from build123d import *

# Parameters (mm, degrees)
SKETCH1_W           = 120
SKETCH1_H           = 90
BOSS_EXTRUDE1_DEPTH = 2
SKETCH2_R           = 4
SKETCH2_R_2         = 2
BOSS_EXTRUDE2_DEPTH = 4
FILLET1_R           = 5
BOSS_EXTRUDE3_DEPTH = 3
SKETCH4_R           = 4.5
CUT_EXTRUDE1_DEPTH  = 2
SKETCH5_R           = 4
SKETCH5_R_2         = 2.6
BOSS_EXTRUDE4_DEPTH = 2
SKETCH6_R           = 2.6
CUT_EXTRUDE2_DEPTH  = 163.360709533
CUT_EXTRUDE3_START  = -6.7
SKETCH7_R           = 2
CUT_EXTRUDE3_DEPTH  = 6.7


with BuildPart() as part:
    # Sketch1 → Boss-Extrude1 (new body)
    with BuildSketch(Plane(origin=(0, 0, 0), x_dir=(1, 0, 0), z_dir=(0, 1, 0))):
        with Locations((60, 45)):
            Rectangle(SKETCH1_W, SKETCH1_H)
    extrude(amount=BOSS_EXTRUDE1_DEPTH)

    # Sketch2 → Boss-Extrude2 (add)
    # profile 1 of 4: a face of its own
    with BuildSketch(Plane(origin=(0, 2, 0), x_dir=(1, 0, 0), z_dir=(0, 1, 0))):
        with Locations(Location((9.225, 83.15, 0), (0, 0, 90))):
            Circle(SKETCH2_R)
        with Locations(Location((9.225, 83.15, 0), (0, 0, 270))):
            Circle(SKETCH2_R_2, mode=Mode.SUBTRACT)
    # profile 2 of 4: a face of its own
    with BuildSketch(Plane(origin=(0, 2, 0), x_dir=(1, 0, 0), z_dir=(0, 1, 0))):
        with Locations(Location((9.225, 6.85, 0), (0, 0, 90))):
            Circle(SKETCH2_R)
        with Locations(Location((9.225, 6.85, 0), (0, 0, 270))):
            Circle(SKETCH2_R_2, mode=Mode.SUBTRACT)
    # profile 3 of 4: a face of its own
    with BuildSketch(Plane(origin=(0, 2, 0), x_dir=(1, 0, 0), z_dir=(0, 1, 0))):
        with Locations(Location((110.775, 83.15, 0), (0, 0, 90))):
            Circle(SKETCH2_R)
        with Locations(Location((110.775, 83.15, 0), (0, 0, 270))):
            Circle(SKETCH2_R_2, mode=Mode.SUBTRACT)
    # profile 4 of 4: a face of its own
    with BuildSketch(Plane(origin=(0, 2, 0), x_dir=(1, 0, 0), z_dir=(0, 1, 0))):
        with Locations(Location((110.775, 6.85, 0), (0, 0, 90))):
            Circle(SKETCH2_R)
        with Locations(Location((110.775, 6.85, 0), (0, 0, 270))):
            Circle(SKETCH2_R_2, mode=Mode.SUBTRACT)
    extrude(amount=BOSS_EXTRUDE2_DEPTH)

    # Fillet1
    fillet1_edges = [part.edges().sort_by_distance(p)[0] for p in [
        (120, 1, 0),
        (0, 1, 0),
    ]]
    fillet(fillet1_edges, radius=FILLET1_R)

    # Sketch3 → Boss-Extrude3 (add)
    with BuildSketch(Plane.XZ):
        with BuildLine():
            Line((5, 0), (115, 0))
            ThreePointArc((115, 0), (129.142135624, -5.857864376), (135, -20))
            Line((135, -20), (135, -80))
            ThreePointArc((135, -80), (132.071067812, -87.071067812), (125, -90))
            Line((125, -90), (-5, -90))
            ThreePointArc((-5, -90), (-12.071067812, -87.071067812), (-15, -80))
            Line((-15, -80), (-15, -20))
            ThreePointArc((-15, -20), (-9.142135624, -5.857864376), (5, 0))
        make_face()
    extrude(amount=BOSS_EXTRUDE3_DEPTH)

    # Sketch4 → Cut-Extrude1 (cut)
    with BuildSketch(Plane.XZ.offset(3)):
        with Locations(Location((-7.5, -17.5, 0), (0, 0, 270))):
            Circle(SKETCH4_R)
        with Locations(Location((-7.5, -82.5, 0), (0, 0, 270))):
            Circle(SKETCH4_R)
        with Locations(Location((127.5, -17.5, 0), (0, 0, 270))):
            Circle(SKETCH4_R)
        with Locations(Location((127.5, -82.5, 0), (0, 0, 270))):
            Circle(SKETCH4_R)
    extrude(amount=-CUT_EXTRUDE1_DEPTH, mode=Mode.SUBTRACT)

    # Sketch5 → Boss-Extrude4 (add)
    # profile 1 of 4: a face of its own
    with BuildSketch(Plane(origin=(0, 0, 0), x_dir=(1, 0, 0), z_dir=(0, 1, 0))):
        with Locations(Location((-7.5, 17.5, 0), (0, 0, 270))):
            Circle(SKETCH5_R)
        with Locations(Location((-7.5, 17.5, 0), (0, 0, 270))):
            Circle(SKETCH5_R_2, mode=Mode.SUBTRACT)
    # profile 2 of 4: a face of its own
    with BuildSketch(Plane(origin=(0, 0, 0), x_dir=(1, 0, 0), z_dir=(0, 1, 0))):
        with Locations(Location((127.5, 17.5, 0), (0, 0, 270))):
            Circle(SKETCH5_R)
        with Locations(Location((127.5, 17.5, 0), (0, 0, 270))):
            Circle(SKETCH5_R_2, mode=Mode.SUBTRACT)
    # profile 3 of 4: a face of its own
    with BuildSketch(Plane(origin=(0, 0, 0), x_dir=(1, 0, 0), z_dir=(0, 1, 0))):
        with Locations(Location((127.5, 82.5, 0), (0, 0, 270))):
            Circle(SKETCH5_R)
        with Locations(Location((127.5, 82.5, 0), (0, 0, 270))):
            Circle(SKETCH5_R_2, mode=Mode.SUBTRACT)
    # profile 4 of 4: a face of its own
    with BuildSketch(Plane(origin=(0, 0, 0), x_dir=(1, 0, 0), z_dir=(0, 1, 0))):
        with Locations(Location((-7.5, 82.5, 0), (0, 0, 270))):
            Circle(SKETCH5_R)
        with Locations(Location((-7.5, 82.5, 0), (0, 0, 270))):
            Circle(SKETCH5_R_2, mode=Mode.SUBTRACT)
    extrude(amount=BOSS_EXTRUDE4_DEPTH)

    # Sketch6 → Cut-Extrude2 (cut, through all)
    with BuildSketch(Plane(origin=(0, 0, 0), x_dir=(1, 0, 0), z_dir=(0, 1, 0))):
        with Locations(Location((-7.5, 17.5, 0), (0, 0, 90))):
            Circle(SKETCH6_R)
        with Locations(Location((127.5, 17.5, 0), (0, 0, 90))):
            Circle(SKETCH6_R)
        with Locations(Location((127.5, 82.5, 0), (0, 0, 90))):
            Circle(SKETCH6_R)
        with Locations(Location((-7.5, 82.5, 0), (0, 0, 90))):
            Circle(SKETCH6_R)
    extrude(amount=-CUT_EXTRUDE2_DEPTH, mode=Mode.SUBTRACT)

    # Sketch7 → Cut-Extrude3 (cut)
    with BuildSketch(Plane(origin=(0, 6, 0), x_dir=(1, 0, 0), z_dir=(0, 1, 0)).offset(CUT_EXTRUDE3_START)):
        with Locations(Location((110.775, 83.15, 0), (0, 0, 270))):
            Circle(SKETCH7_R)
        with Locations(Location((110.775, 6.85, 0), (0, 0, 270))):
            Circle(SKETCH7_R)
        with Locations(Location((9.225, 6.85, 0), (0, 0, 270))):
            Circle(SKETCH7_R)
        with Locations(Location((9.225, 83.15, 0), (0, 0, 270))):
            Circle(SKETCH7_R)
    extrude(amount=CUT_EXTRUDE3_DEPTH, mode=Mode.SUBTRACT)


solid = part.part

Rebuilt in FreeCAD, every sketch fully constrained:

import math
import FreeCAD as App
import Part
import Sketcher


def edges_at(feature, points):
    """Names of the edges that pass closest to the given points."""
    edges = feature.Shape.Edges
    near = lambda p: min(range(len(edges)), key=lambda i: edges[i].distToShape(Part.Vertex(*p))[0])
    return sorted({f"Edge{near(p) + 1}" for p in points})


def add_polygon(sketch, points):
    """Adds a closed chain of lines whose ends are joined by coincident constraints."""
    first, n = sketch.GeometryCount, len(points)
    for a, b in zip(points, points[1:] + points[:1]):
        sketch.addGeometry(Part.LineSegment(App.Vector(*a, 0), App.Vector(*b, 0)), False)
    for i in range(n):
        sketch.addConstraint(Sketcher.Constraint("Coincident", first + i, 2, first + (i + 1) % n, 1))

doc = App.newDocument("Part")
body = doc.addObject("PartDesign::Body", "Body")

# Sketch on XZ plane
sketch1 = body.newObject("Sketcher::SketchObject", "Sketch")
sketch1.AttachmentSupport = (doc.getObject("XZ_Plane"), [""])
sketch1.MapMode = "FlatFace"
add_polygon(sketch1, [(0, -90), (0, 0), (120, 0), (120, -90)])  # lines 0-3
sketch1.addConstraint([
    Sketcher.Constraint("Vertical", 0),
    Sketcher.Constraint("Horizontal", 1),
    Sketcher.Constraint("Vertical", 2),
    Sketcher.Constraint("Horizontal", 3),
    Sketcher.Constraint("Coincident", 0, 2, -1, 1),
    Sketcher.Constraint("DistanceX", 1, 1, 1, 2, 120.0),
    Sketcher.Constraint("DistanceY", 0, 1, 0, 2, 90.0),
])
pad1 = body.newObject("PartDesign::Pad", "Pad")
pad1.Profile = sketch1
pad1.Length = 2
pad1.Reversed = True

# Sketch on XZ plane
sketch2 = body.newObject("Sketcher::SketchObject", "Sketch001")
sketch2.AttachmentSupport = (doc.getObject("XZ_Plane"), [""])
sketch2.MapMode = "FlatFace"
sketch2.AttachmentOffset = App.Placement(App.Vector(0, 0, -2), App.Rotation())
sketch2.addGeometry([
    Part.Circle(App.Vector(9.2, -83.2, 0), App.Vector(0, 0, 1), 4),  # 0
    Part.Circle(App.Vector(9.2, -83.2, 0), App.Vector(0, 0, 1), 2),  # 1
    Part.Circle(App.Vector(9.2, -6.8, 0), App.Vector(0, 0, 1), 4),  # 2
    Part.Circle(App.Vector(9.2, -6.8, 0), App.Vector(0, 0, 1), 2),  # 3
    Part.Circle(App.Vector(110.8, -83.2, 0), App.Vector(0, 0, 1), 4),  # 4
    Part.Circle(App.Vector(110.8, -83.2, 0), App.Vector(0, 0, 1), 2),  # 5
    Part.Circle(App.Vector(110.8, -6.8, 0), App.Vector(0, 0, 1), 4),  # 6
    Part.Circle(App.Vector(110.8, -6.8, 0), App.Vector(0, 0, 1), 2),  # 7
], False)
sketch2.addConstraint([
    Sketcher.Constraint("Coincident", 1, 3, 0, 3),
    Sketcher.Constraint("Coincident", 3, 3, 2, 3),
    Sketcher.Constraint("Coincident", 5, 3, 4, 3),
    Sketcher.Constraint("Coincident", 7, 3, 6, 3),
    Sketcher.Constraint("Equal", 0, 2),
    Sketcher.Constraint("Equal", 1, 3),
    Sketcher.Constraint("Equal", 2, 4),
    Sketcher.Constraint("Equal", 3, 5),
    Sketcher.Constraint("Equal", 4, 6),
    Sketcher.Constraint("Equal", 5, 7),
    Sketcher.Constraint("Horizontal", 1, 3, 4, 3),
    Sketcher.Constraint("Horizontal", 3, 3, 6, 3),
    Sketcher.Constraint("Vertical", 1, 3, 2, 3),
    Sketcher.Constraint("Vertical", 5, 3, 6, 3),
    Sketcher.Constraint("Diameter", 0, 8.0),
    Sketcher.Constraint("Diameter", 1, 4.0),
    Sketcher.Constraint("DistanceY", 0, 3, 2, 3, 76.3),
    Sketcher.Constraint("DistanceY", 0, 3, -1, 1, 83.15),
    Sketcher.Constraint("DistanceX", 0, 3, 4, 3, 101.55),
    Sketcher.Constraint("DistanceX", -1, 1, 0, 3, 9.225),
])
pad2 = body.newObject("PartDesign::Pad", "Pad001")
pad2.Profile = sketch2
pad2.Length = 4
pad2.Reversed = True
doc.recompute()

fillet = body.newObject("PartDesign::Fillet", "Fillet")
fillet.Base = (pad2, edges_at(pad2, [(120, 1, 0), (0, 1, 0)]))
fillet.Radius = 5

# Sketch on XZ plane
sketch3 = body.newObject("Sketcher::SketchObject", "Sketch002")
sketch3.AttachmentSupport = (doc.getObject("XZ_Plane"), [""])
sketch3.MapMode = "FlatFace"
sketch3.addGeometry([
    Part.LineSegment(App.Vector(115, 0, 0), App.Vector(5, 0, 0)),  # 0
    Part.ArcOfCircle(Part.Circle(App.Vector(5, -20, 0), App.Vector(0, 0, 1), 20), math.radians(90), math.radians(180)),  # 1
    Part.LineSegment(App.Vector(-15, -20, 0), App.Vector(-15, -80, 0)),  # 2
    Part.ArcOfCircle(Part.Circle(App.Vector(-5, -80, 0), App.Vector(0, 0, 1), 10), math.radians(180), math.radians(270)),  # 3
    Part.LineSegment(App.Vector(-5, -90, 0), App.Vector(125, -90, 0)),  # 4
    Part.ArcOfCircle(Part.Circle(App.Vector(125, -80, 0), App.Vector(0, 0, 1), 10), math.radians(-90), math.radians(0)),  # 5
    Part.LineSegment(App.Vector(135, -80, 0), App.Vector(135, -20, 0)),  # 6
    Part.ArcOfCircle(Part.Circle(App.Vector(115, -20, 0), App.Vector(0, 0, 1), 20), math.radians(0), math.radians(90)),  # 7
], False)
sketch3.addConstraint([
    Sketcher.Constraint("Tangent", 0, 2, 1, 1),
    Sketcher.Constraint("Tangent", 1, 2, 2, 1),
    Sketcher.Constraint("Tangent", 2, 2, 3, 1),
    Sketcher.Constraint("Tangent", 3, 2, 4, 1),
    Sketcher.Constraint("Tangent", 4, 2, 5, 1),
    Sketcher.Constraint("Tangent", 5, 2, 6, 1),
    Sketcher.Constraint("Tangent", 6, 2, 7, 1),
    Sketcher.Constraint("Tangent", 7, 2, 0, 1),
    Sketcher.Constraint("Horizontal", 0),
    Sketcher.Constraint("Vertical", 2),
    Sketcher.Constraint("Horizontal", 4),
    Sketcher.Constraint("Vertical", 6),
    Sketcher.Constraint("Equal", 3, 5),
    Sketcher.Constraint("Equal", 1, 7),
    Sketcher.Constraint("PointOnObject", 0, 2, -1),
    Sketcher.Constraint("Radius", 1, 20.0),
    Sketcher.Constraint("Radius", 3, 10.0),
    Sketcher.Constraint("DistanceX", 0, 2, 0, 1, 110.0),
    Sketcher.Constraint("DistanceY", 2, 2, 2, 1, 60.0),
    Sketcher.Constraint("DistanceX", -1, 1, 1, 3, 5.0),
])
pad3 = body.newObject("PartDesign::Pad", "Pad002")
pad3.Profile = sketch3
pad3.Length = 3

# Sketch on XZ plane
sketch4 = body.newObject("Sketcher::SketchObject", "Sketch003")
sketch4.AttachmentSupport = (doc.getObject("XZ_Plane"), [""])
sketch4.MapMode = "FlatFace"
sketch4.AttachmentOffset = App.Placement(App.Vector(0, 0, 3), App.Rotation())
sketch4.addGeometry([
    Part.Circle(App.Vector(-7.5, -17.5, 0), App.Vector(0, 0, 1), 4.5),
    Part.Circle(App.Vector(-7.5, -82.5, 0), App.Vector(0, 0, 1), 4.5),
    Part.Circle(App.Vector(127.5, -17.5, 0), App.Vector(0, 0, 1), 4.5),
    Part.Circle(App.Vector(127.5, -82.5, 0), App.Vector(0, 0, 1), 4.5),
], False)
sketch4.addConstraint([
    Sketcher.Constraint("Equal", 0, 1),
    Sketcher.Constraint("Equal", 1, 2),
    Sketcher.Constraint("Equal", 2, 3),
    Sketcher.Constraint("Horizontal", 0, 3, 2, 3),
    Sketcher.Constraint("Horizontal", 1, 3, 3, 3),
    Sketcher.Constraint("Vertical", 0, 3, 1, 3),
    Sketcher.Constraint("Vertical", 2, 3, 3, 3),
    Sketcher.Constraint("Diameter", 0, 9.0),
    Sketcher.Constraint("DistanceY", 1, 3, 0, 3, 65.0),
    Sketcher.Constraint("DistanceX", 0, 3, 2, 3, 135.0),
    Sketcher.Constraint("DistanceX", 0, 3, -1, 1, 7.5),
    Sketcher.Constraint("DistanceY", 0, 3, -1, 1, 17.5),
])
pocket1 = body.newObject("PartDesign::Pocket", "Pocket")
pocket1.Profile = sketch4
pocket1.Length = 2

# Sketch on XZ plane
sketch5 = body.newObject("Sketcher::SketchObject", "Sketch004")
sketch5.AttachmentSupport = (doc.getObject("XZ_Plane"), [""])
sketch5.MapMode = "FlatFace"
sketch5.addGeometry([
    Part.Circle(App.Vector(-7.5, -17.5, 0), App.Vector(0, 0, 1), 4),  # 0
    Part.Circle(App.Vector(-7.5, -17.5, 0), App.Vector(0, 0, 1), 2.6),  # 1
    Part.Circle(App.Vector(127.5, -17.5, 0), App.Vector(0, 0, 1), 4),  # 2
    Part.Circle(App.Vector(127.5, -17.5, 0), App.Vector(0, 0, 1), 2.6),  # 3
    Part.Circle(App.Vector(127.5, -82.5, 0), App.Vector(0, 0, 1), 4),  # 4
    Part.Circle(App.Vector(127.5, -82.5, 0), App.Vector(0, 0, 1), 2.6),  # 5
    Part.Circle(App.Vector(-7.5, -82.5, 0), App.Vector(0, 0, 1), 4),  # 6
    Part.Circle(App.Vector(-7.5, -82.5, 0), App.Vector(0, 0, 1), 2.6),  # 7
], False)
sketch5.addConstraint([
    Sketcher.Constraint("Coincident", 1, 3, 0, 3),
    Sketcher.Constraint("Coincident", 3, 3, 2, 3),
    Sketcher.Constraint("Coincident", 5, 3, 4, 3),
    Sketcher.Constraint("Coincident", 7, 3, 6, 3),
    Sketcher.Constraint("Equal", 0, 2),
    Sketcher.Constraint("Equal", 1, 3),
    Sketcher.Constraint("Equal", 2, 4),
    Sketcher.Constraint("Equal", 3, 5),
    Sketcher.Constraint("Equal", 4, 6),
    Sketcher.Constraint("Equal", 5, 7),
    Sketcher.Constraint("Horizontal", 1, 3, 2, 3),
    Sketcher.Constraint("Horizontal", 5, 3, 6, 3),
    Sketcher.Constraint("Vertical", 3, 3, 4, 3),
    Sketcher.Constraint("Vertical", 1, 3, 6, 3),
    Sketcher.Constraint("Diameter", 0, 8.0),
    Sketcher.Constraint("Diameter", 1, 5.2),
    Sketcher.Constraint("DistanceX", 0, 3, 2, 3, 135.0),
    Sketcher.Constraint("DistanceY", 4, 3, 2, 3, 65.0),
    Sketcher.Constraint("DistanceX", 0, 3, -1, 1, 7.5),
    Sketcher.Constraint("DistanceY", 0, 3, -1, 1, 17.5),
])
pad4 = body.newObject("PartDesign::Pad", "Pad003")
pad4.Profile = sketch5
pad4.Length = 2
pad4.Reversed = True

# Sketch on XZ plane
sketch6 = body.newObject("Sketcher::SketchObject", "Sketch005")
sketch6.AttachmentSupport = (doc.getObject("XZ_Plane"), [""])
sketch6.MapMode = "FlatFace"
sketch6.addGeometry([
    Part.Circle(App.Vector(-7.5, -17.5, 0), App.Vector(0, 0, 1), 2.6),
    Part.Circle(App.Vector(127.5, -17.5, 0), App.Vector(0, 0, 1), 2.6),
    Part.Circle(App.Vector(127.5, -82.5, 0), App.Vector(0, 0, 1), 2.6),
    Part.Circle(App.Vector(-7.5, -82.5, 0), App.Vector(0, 0, 1), 2.6),
], False)
sketch6.addConstraint([
    Sketcher.Constraint("Equal", 0, 1),
    Sketcher.Constraint("Equal", 1, 2),
    Sketcher.Constraint("Equal", 2, 3),
    Sketcher.Constraint("Horizontal", 0, 3, 1, 3),
    Sketcher.Constraint("Horizontal", 2, 3, 3, 3),
    Sketcher.Constraint("Vertical", 1, 3, 2, 3),
    Sketcher.Constraint("Vertical", 0, 3, 3, 3),
    Sketcher.Constraint("Diameter", 0, 5.2),
    Sketcher.Constraint("DistanceX", 0, 3, 1, 3, 135.0),
    Sketcher.Constraint("DistanceY", 2, 3, 1, 3, 65.0),
    Sketcher.Constraint("DistanceX", 0, 3, -1, 1, 7.5),
    Sketcher.Constraint("DistanceY", 0, 3, -1, 1, 17.5),
])
pocket2 = body.newObject("PartDesign::Pocket", "Pocket001")
pocket2.Profile = sketch6
pocket2.Type = "ThroughAll"
pocket2.Reversed = True

# Sketch on XZ plane
sketch7 = body.newObject("Sketcher::SketchObject", "Sketch006")
sketch7.AttachmentSupport = (doc.getObject("XZ_Plane"), [""])
sketch7.MapMode = "FlatFace"
sketch7.AttachmentOffset = App.Placement(App.Vector(0, 0, 0.7), App.Rotation())
sketch7.addGeometry([
    Part.Circle(App.Vector(110.8, -83.2, 0), App.Vector(0, 0, 1), 2),
    Part.Circle(App.Vector(110.8, -6.8, 0), App.Vector(0, 0, 1), 2),
    Part.Circle(App.Vector(9.2, -6.8, 0), App.Vector(0, 0, 1), 2),
    Part.Circle(App.Vector(9.2, -83.2, 0), App.Vector(0, 0, 1), 2),
], False)
sketch7.addConstraint([
    Sketcher.Constraint("Equal", 0, 1),
    Sketcher.Constraint("Equal", 1, 2),
    Sketcher.Constraint("Equal", 2, 3),
    Sketcher.Constraint("Horizontal", 1, 3, 2, 3),
    Sketcher.Constraint("Horizontal", 0, 3, 3, 3),
    Sketcher.Constraint("Vertical", 0, 3, 1, 3),
    Sketcher.Constraint("Vertical", 2, 3, 3, 3),
    Sketcher.Constraint("Diameter", 0, 4.0),
    Sketcher.Constraint("DistanceY", 0, 3, 1, 3, 76.3),
    Sketcher.Constraint("DistanceY", 0, 3, -1, 1, 83.15),
    Sketcher.Constraint("DistanceX", 2, 3, 1, 3, 101.55),
    Sketcher.Constraint("DistanceX", -1, 1, 0, 3, 110.775),
])
pocket3 = body.newObject("PartDesign::Pocket", "Pocket002")
pocket3.Profile = sketch7
pocket3.Length = 6.7

doc.recompute()
